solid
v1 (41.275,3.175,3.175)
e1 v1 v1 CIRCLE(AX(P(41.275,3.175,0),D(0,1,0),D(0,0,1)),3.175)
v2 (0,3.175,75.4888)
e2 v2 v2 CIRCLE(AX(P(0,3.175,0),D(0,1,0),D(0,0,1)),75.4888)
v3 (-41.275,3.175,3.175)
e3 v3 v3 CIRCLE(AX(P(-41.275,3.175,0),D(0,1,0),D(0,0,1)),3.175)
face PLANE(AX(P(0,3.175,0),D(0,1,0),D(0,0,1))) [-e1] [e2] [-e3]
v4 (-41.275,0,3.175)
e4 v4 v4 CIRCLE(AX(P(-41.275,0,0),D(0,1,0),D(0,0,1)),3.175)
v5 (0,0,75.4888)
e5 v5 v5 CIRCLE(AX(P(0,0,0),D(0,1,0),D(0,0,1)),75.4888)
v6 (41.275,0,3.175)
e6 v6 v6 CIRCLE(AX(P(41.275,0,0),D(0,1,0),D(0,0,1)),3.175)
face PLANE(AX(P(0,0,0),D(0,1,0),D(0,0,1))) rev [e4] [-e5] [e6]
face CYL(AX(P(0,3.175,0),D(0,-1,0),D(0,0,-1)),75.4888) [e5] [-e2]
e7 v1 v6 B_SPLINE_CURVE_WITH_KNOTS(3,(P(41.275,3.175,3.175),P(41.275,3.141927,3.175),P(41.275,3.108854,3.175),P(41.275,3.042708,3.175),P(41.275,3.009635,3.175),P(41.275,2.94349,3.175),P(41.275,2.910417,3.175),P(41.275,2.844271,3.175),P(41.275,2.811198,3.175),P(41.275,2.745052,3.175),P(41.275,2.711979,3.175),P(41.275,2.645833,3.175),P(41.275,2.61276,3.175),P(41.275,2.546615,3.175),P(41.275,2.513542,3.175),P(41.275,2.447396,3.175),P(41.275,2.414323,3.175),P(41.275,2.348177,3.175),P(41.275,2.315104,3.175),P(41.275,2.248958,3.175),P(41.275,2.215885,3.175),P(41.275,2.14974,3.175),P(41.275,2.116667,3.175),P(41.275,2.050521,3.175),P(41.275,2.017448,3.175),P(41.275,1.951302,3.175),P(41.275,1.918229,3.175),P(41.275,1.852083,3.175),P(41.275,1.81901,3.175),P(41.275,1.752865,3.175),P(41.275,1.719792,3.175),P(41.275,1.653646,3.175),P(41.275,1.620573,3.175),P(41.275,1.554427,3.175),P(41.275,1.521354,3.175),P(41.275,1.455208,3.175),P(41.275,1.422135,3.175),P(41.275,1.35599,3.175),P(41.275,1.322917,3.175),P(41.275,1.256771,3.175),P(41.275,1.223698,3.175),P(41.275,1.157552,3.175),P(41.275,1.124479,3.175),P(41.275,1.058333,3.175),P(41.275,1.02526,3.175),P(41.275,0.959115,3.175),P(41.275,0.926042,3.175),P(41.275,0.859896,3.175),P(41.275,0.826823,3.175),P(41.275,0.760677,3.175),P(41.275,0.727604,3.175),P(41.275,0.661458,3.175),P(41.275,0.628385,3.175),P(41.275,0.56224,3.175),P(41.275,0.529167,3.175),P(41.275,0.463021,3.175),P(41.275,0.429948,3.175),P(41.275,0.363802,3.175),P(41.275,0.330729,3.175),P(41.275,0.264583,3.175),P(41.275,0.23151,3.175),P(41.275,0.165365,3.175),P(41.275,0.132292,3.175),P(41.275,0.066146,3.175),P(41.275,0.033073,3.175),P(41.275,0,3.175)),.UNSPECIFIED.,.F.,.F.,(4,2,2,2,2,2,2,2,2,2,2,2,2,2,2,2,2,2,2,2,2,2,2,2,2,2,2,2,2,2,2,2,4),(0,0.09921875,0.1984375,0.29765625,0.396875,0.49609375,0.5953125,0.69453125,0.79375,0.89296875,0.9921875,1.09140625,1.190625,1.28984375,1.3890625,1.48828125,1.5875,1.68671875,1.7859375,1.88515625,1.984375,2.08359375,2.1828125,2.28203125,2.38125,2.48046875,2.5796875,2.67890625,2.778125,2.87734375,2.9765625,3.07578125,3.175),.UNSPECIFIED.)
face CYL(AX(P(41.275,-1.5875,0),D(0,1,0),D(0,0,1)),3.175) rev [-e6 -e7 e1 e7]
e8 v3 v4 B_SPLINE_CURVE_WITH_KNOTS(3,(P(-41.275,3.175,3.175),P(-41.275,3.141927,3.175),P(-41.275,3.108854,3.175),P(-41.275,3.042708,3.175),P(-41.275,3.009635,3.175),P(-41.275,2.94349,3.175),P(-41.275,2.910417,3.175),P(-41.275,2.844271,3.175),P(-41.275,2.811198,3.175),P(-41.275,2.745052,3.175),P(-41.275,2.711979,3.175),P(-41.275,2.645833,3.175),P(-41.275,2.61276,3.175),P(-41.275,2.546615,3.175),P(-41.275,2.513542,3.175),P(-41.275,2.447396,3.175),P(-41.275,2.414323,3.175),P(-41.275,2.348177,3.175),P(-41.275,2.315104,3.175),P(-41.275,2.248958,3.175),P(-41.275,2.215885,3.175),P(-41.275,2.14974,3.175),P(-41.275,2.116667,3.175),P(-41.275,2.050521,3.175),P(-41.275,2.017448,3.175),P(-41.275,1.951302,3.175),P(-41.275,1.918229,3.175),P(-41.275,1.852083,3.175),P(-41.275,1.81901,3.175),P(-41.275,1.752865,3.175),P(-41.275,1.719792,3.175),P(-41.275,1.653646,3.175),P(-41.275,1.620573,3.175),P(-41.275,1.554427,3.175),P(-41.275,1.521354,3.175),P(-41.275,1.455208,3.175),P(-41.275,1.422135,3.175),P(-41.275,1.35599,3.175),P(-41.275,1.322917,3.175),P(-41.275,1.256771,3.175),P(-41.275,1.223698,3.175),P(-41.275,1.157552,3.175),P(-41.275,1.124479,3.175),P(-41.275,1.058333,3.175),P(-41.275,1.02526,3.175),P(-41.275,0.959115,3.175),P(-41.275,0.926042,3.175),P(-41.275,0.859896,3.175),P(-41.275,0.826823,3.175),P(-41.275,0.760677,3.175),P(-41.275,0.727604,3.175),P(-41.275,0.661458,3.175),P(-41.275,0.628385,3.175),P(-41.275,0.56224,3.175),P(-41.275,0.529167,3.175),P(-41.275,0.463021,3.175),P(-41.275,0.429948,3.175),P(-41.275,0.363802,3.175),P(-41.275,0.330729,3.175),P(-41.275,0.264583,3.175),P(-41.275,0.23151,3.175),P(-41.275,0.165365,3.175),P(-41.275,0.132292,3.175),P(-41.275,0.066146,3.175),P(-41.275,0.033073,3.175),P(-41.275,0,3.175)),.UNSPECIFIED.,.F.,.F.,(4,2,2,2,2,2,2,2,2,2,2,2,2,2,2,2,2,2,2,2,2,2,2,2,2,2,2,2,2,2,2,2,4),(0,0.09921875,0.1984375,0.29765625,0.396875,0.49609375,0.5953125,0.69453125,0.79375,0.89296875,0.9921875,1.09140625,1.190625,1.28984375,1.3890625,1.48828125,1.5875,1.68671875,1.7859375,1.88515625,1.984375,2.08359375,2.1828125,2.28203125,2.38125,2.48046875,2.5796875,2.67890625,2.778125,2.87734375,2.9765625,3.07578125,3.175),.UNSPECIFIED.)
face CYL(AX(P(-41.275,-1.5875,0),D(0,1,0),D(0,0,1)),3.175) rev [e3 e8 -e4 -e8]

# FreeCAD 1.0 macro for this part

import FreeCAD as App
import Part
import Sketcher

V = App.Vector
Q = App.Units.Quantity

doc = App.newDocument("Part")
params = doc.addObject("Spreadsheet::Sheet", "Params")
for row, (alias, value) in enumerate([
    ("sketch1_diameter", "5.944 in"),
    ("pad1_length", "0.125 in"),
    ("sketch2_diameter", "0.25 in"),
    ("pocket1_length", "0.1875 in"),
], start=1):
    params.set(f"A{row}", alias)
    params.set(f"B{row}", "=" + value)
    params.setAlias(f"B{row}", alias)

body = doc.addObject("PartDesign::Body", "Body")

# Sketch on XZ plane
sketch1 = body.newObject("Sketcher::SketchObject", "Sketch")
sketch1.AttachmentSupport = (doc.getObject("XZ_Plane"), [""])
sketch1.MapMode = "FlatFace"
sketch1.addGeometry(Part.Circle(V(0, 0, 0), V(0, 0, 1), 75.4888), False)
sketch1.addConstraint([
    Sketcher.Constraint("Coincident", 0, 3, -1, 1),
    Sketcher.Constraint("Diameter", 0, Q("5.944 in")),
])
sketch1.setExpression("Constraints[1]", "Params.sketch1_diameter")
pad1 = body.newObject("PartDesign::Pad", "Pad")
pad1.Profile = sketch1
pad1.setExpression("Length", "Params.pad1_length")
pad1.Reversed = True

# Sketch on XZ plane
sketch2 = body.newObject("Sketcher::SketchObject", "Sketch001")
sketch2.AttachmentSupport = (doc.getObject("XZ_Plane"), [""])
sketch2.MapMode = "FlatFace"
sketch2.AttachmentOffset = App.Placement(V(0, 0, -0.125 * 25.4), App.Rotation())
sketch2.addGeometry([
    Part.Circle(V(-41.275, 0, 0), V(0, 0, 1), 3.175),
    Part.Circle(V(41.275, 0, 0), V(0, 0, 1), 3.175),
], False)
sketch2.addConstraint([
    Sketcher.Constraint("Equal", 0, 1),
    Sketcher.Constraint("Symmetric", 0, 3, 1, 3, -1, 1),
    Sketcher.Constraint("PointOnObject", 0, 3, -1),
    Sketcher.Constraint("Diameter", 0, Q("0.25 in")),
    Sketcher.Constraint("DistanceX", 0, 3, 1, 3, Q("3.25 in")),
])
sketch2.setExpression("Constraints[3]", "Params.sketch2_diameter")
pocket1 = body.newObject("PartDesign::Pocket", "Pocket")
pocket1.Profile = sketch2
pocket1.setExpression("Length", "Params.pocket1_length")
pocket1.Reversed = True

doc.recompute()
